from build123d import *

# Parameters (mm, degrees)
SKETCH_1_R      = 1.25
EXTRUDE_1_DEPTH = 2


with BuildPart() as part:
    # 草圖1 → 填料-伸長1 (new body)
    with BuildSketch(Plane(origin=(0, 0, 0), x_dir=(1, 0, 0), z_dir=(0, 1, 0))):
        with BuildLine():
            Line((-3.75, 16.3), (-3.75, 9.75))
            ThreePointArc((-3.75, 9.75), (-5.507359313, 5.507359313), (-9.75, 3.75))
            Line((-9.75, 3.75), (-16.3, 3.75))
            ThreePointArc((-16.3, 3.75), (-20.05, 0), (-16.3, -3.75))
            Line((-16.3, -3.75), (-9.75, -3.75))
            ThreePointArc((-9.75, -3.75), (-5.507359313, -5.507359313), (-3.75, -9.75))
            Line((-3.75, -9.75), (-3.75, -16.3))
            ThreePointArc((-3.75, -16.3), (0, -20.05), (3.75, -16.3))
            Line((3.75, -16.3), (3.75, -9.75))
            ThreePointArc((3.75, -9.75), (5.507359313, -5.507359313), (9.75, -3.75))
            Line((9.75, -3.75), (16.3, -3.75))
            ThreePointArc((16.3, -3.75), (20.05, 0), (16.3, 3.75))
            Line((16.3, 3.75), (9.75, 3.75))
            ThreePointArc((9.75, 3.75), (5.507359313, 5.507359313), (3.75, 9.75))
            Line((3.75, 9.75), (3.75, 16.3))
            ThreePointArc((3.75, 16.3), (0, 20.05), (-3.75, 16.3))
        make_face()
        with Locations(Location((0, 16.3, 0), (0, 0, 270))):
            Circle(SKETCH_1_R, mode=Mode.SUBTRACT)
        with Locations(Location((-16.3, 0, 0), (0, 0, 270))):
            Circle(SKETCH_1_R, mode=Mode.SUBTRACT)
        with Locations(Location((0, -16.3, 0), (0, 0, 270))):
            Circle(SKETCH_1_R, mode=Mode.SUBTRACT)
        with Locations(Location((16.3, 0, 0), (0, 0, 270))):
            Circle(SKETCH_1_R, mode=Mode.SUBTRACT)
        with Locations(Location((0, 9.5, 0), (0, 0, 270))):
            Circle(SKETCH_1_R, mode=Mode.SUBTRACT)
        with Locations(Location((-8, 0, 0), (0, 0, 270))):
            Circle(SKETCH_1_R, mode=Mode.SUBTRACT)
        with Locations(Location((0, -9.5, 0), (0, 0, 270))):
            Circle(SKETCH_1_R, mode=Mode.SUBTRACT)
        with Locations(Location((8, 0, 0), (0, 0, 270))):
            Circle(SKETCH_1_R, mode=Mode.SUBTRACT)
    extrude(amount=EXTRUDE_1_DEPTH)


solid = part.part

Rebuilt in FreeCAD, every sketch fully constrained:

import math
import FreeCAD as App
import Part
import Sketcher

doc = App.newDocument("Part")
body = doc.addObject("PartDesign::Body", "Body")

# Sketch on XZ plane
sketch1 = body.newObject("Sketcher::SketchObject", "Sketch")
sketch1.AttachmentSupport = (doc.getObject("XZ_Plane"), [""])
sketch1.MapMode = "FlatFace"
sketch1.addGeometry([
    Part.LineSegment(App.Vector(-3.8, -16.3, 0), App.Vector(-3.8, -9.8, 0)),  # 0
    Part.ArcOfCircle(Part.Circle(App.Vector(-9.8, -9.8, 0), App.Vector(0, 0, 1), 6), math.radians(0), math.radians(90)),  # 1
    Part.LineSegment(App.Vector(-9.8, -3.8, 0), App.Vector(-16.3, -3.8, 0)),  # 2
    Part.ArcOfCircle(Part.Circle(App.Vector(-16.3, 0, 0), App.Vector(0, 0, 1), 3.8), math.radians(90), math.radians(270)),  # 3
    Part.LineSegment(App.Vector(-16.3, 3.8, 0), App.Vector(-9.8, 3.8, 0)),  # 4
    Part.ArcOfCircle(Part.Circle(App.Vector(-9.8, 9.8, 0), App.Vector(0, 0, 1), 6), math.radians(-90), math.radians(0)),  # 5
    Part.LineSegment(App.Vector(-3.8, 9.8, 0), App.Vector(-3.8, 16.3, 0)),  # 6
    Part.ArcOfCircle(Part.Circle(App.Vector(0, 16.3, 0), App.Vector(0, 0, 1), 3.8), math.radians(0), math.radians(180)),  # 7
    Part.LineSegment(App.Vector(3.8, 16.3, 0), App.Vector(3.8, 9.8, 0)),  # 8
    Part.ArcOfCircle(Part.Circle(App.Vector(9.8, 9.8, 0), App.Vector(0, 0, 1), 6), math.radians(180), math.radians(270)),  # 9
    Part.LineSegment(App.Vector(9.8, 3.8, 0), App.Vector(16.3, 3.8, 0)),  # 10
    Part.ArcOfCircle(Part.Circle(App.Vector(16.3, 0, 0), App.Vector(0, 0, 1), 3.8), math.radians(-90), math.radians(90)),  # 11
    Part.LineSegment(App.Vector(16.3, -3.8, 0), App.Vector(9.8, -3.8, 0)),  # 12
    Part.ArcOfCircle(Part.Circle(App.Vector(9.8, -9.8, 0), App.Vector(0, 0, 1), 6), math.radians(90), math.radians(180)),  # 13
    Part.LineSegment(App.Vector(3.8, -9.8, 0), App.Vector(3.8, -16.3, 0)),  # 14
    Part.ArcOfCircle(Part.Circle(App.Vector(0, -16.3, 0), App.Vector(0, 0, 1), 3.8), math.radians(180), math.radians(360)),  # 15
    Part.Circle(App.Vector(0, 16.3, 0), App.Vector(0, 0, 1), 1.2),  # 16
    Part.Circle(App.Vector(0, 9.5, 0), App.Vector(0, 0, 1), 1.2),  # 17
    Part.Circle(App.Vector(-16.3, 0, 0), App.Vector(0, 0, 1), 1.2),  # 18
    Part.Circle(App.Vector(-8, 0, 0), App.Vector(0, 0, 1), 1.2),  # 19
    Part.Circle(App.Vector(8, 0, 0), App.Vector(0, 0, 1), 1.2),  # 20
    Part.Circle(App.Vector(16.3, 0, 0), App.Vector(0, 0, 1), 1.2),  # 21
    Part.Circle(App.Vector(0, -9.5, 0), App.Vector(0, 0, 1), 1.2),  # 22
    Part.Circle(App.Vector(0, -16.3, 0), App.Vector(0, 0, 1), 1.2),  # 23
], False)
sketch1.addConstraint([
    Sketcher.Constraint("Tangent", 0, 2, 1, 1),
    Sketcher.Constraint("Tangent", 1, 2, 2, 1),
    Sketcher.Constraint("Tangent", 2, 2, 3, 2),
    Sketcher.Constraint("Tangent", 3, 1, 4, 1),
    Sketcher.Constraint("Tangent", 4, 2, 5, 1),
    Sketcher.Constraint("Tangent", 5, 2, 6, 1),
    Sketcher.Constraint("Tangent", 6, 2, 7, 2),
    Sketcher.Constraint("Tangent", 7, 1, 8, 1),
    Sketcher.Constraint("Tangent", 8, 2, 9, 1),
    Sketcher.Constraint("Tangent", 9, 2, 10, 1),
    Sketcher.Constraint("Tangent", 10, 2, 11, 2),
    Sketcher.Constraint("Tangent", 11, 1, 12, 1),
    Sketcher.Constraint("Tangent", 12, 2, 13, 1),
    Sketcher.Constraint("Tangent", 13, 2, 14, 1),
    Sketcher.Constraint("Tangent", 14, 2, 15, 2),
    Sketcher.Constraint("Tangent", 15, 1, 0, 1),
    Sketcher.Constraint("Vertical", 0),
    Sketcher.Constraint("Horizontal", 2),
    Sketcher.Constraint("Horizontal", 4),
    Sketcher.Constraint("Vertical", 6),
    Sketcher.Constraint("Vertical", 8),
    Sketcher.Constraint("Horizontal", 10),
    Sketcher.Constraint("Horizontal", 12),
    Sketcher.Constraint("Vertical", 14),
    Sketcher.Constraint("Coincident", 16, 3, 7, 3),
    Sketcher.Constraint("Coincident", 18, 3, 3, 3),
    Sketcher.Constraint("Coincident", 21, 3, 11, 3),
    Sketcher.Constraint("Coincident", 23, 3, 15, 3),
    Sketcher.Constraint("Equal", 1, 5),
    Sketcher.Constraint("Equal", 3, 7),
    Sketcher.Constraint("Equal", 5, 9),
    Sketcher.Constraint("Equal", 7, 11),
    Sketcher.Constraint("Equal", 9, 13),
    Sketcher.Constraint("Equal", 11, 15),
    Sketcher.Constraint("Equal", 16, 17),
    Sketcher.Constraint("Equal", 17, 18),
    Sketcher.Constraint("Equal", 18, 19),
    Sketcher.Constraint("Equal", 19, 20),
    Sketcher.Constraint("Equal", 20, 21),
    Sketcher.Constraint("Equal", 21, 22),
    Sketcher.Constraint("Equal", 22, 23),
    Sketcher.Constraint("Symmetric", 1, 3, 9, 3, -1, 1),
    Sketcher.Constraint("Symmetric", 19, 3, 20, 3, -1, 1),
    Sketcher.Constraint("Symmetric", 17, 3, 22, 3, -1, 1),
    Sketcher.Constraint("Symmetric", 5, 3, 9, 3, -2),
    Sketcher.Constraint("PointOnObject", 17, 3, -2),
    Sketcher.Constraint("PointOnObject", 19, 3, -1),
    Sketcher.Constraint("Equal", 4, 10),
    Sketcher.Constraint("Equal", 12, 0),
    Sketcher.Constraint("Equal", 0, 6),
    Sketcher.Constraint("Radius", 1, 6.0),
    Sketcher.Constraint("Diameter", 16, 2.5),
    Sketcher.Constraint("Radius", 3, 3.75),
    Sketcher.Constraint("DistanceX", 19, 3, -1, 1, 8.0),
    Sketcher.Constraint("DistanceX", 2, 2, 2, 1, 6.55),
    Sketcher.Constraint("DistanceY", -1, 1, 17, 3, 9.5),
])
pad1 = body.newObject("PartDesign::Pad", "Pad")
pad1.Profile = sketch1
pad1.Length = 2
pad1.Reversed = True

doc.recompute()
